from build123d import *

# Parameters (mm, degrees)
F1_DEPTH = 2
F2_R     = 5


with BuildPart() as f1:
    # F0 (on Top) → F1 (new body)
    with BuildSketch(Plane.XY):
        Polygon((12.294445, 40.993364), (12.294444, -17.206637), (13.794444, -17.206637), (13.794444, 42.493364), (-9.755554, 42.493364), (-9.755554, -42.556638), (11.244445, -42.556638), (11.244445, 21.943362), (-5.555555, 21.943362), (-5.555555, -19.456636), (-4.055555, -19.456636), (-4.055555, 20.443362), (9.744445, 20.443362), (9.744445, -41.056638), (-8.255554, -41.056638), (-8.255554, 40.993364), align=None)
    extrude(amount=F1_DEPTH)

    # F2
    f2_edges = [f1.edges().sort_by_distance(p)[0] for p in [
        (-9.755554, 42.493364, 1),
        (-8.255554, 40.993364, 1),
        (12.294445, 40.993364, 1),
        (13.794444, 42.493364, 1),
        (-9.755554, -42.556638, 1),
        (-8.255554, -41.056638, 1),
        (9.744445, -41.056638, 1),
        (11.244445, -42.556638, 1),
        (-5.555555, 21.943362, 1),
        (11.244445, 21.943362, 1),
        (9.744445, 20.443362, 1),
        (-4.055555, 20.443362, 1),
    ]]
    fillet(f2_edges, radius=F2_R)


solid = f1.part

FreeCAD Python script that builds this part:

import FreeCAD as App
import Part
import Sketcher

V = App.Vector
Q = App.Units.Quantity


def edges_at(feature, points):
    """Names of the edges that pass closest to the given points."""
    edges = feature.Shape.Edges
    near = lambda p: min(range(len(edges)), key=lambda i: edges[i].distToShape(Part.Vertex(*p))[0])
    return sorted({f"Edge{near(p) + 1}" for p in points})


def add_polygon(sketch, points):
    """Adds a closed chain of lines whose ends are joined by coincident constraints."""
    first, n = sketch.GeometryCount, len(points)
    for a, b in zip(points, points[1:] + points[:1]):
        sketch.addGeometry(Part.LineSegment(App.Vector(*a, 0), App.Vector(*b, 0)), False)
    for i in range(n):
        sketch.addConstraint(Sketcher.Constraint("Coincident", first + i, 2, first + (i + 1) % n, 1))

doc = App.newDocument("Part")
body = doc.addObject("PartDesign::Body", "Body")

# Sketch on XY plane
sketch1 = doc.addObject("Sketcher::SketchObject", "Sketch")
body.addObject(sketch1)
sketch1.AttachmentSupport = (doc.XY_Plane, [""])
sketch1.MapMode = "FlatFace"
add_polygon(sketch1, [(12.294445, 40.993364), (12.294444, -17.206637), (13.794444, -17.206637), (13.794444, 42.493364), (-9.755554, 42.493364), (-9.755554, -42.556638), (11.244445, -42.556638), (11.244445, 21.943362), (-5.555555, 21.943362), (-5.555555, -19.456636), (-4.055555, -19.456636), (-4.055555, 20.443362), (9.744445, 20.443362), (9.744445, -41.056638), (-8.255554, -41.056638), (-8.255554, 40.993364)])  # lines 0-15
sketch1.addConstraint([
    Sketcher.Constraint("Vertical", 0),
    Sketcher.Constraint("Horizontal", 1),
    Sketcher.Constraint("Vertical", 2),
    Sketcher.Constraint("Horizontal", 3),
    Sketcher.Constraint("Vertical", 4),
    Sketcher.Constraint("Horizontal", 5),
    Sketcher.Constraint("Vertical", 6),
    Sketcher.Constraint("Horizontal", 7),
    Sketcher.Constraint("Vertical", 8),
    Sketcher.Constraint("Horizontal", 9),
    Sketcher.Constraint("Vertical", 10),
    Sketcher.Constraint("Horizontal", 11),
    Sketcher.Constraint("Vertical", 12),
    Sketcher.Constraint("Horizontal", 13),
    Sketcher.Constraint("Vertical", 14),
    Sketcher.Constraint("Horizontal", 15),
    Sketcher.Constraint("Equal", 1, 9),
    Sketcher.Constraint("DistanceX", 5, 1, 5, 2, Q("20.999999 mm")),
    Sketcher.Constraint("DistanceX", 13, 2, 13, 1, Q("17.999999 mm")),
    Sketcher.Constraint("DistanceX", 1, 1, 1, 2, Q("1.5 mm")),
    Sketcher.Constraint("DistanceX", 7, 2, 7, 1, Q("16.8 mm")),
    Sketcher.Constraint("DistanceX", 11, 1, 11, 2, Q("13.8 mm")),
    Sketcher.Constraint("DistanceY", 0, 2, 0, 1, Q("58.200001 mm")),
    Sketcher.Constraint("DistanceY", 2, 1, 2, 2, Q("59.700001 mm")),
    Sketcher.Constraint("DistanceY", 6, 1, 6, 2, Q("64.5 mm")),
    Sketcher.Constraint("DistanceY", 12, 2, 12, 1, Q("61.5 mm")),
    Sketcher.Constraint("DistanceX", 3, 2, 3, 1, Q("23.549998 mm")),
    Sketcher.Constraint("DistanceY", 4, 2, 8, 2, Q("23.100002 mm")),
    Sketcher.Constraint("DistanceY", 10, 2, 7, 2, Q("1.5 mm")),
    Sketcher.Constraint("DistanceY", 4, 2, 0, 2, Q("25.350001 mm")),
    Sketcher.Constraint("DistanceX", -1, 1, 0, 2, Q("12.294444 mm")),
    Sketcher.Constraint("DistanceY", 0, 2, -1, 1, Q("17.206637 mm")),
])
pad1 = doc.addObject("PartDesign::Pad", "Pad")
body.addObject(pad1)
pad1.Profile = sketch1
pad1.Length = 2
doc.recompute()

fillet = doc.addObject("PartDesign::Fillet", "Fillet")
body.addObject(fillet)
fillet.Base = (pad1, edges_at(pad1, [
    (-9.756, 42.493, 1),
    (-8.256, 40.993, 1),
    (12.294, 40.993, 1),
    (13.794, 42.493, 1),
    (-9.756, -42.557, 1),
    (-8.256, -41.057, 1),
    (9.744, -41.057, 1),
    (11.244, -42.557, 1),
    (-5.556, 21.943, 1),
    (11.244, 21.943, 1),
    (9.744, 20.443, 1),
    (-4.056, 20.443, 1),
]))
fillet.Radius = 5

doc.recompute()
